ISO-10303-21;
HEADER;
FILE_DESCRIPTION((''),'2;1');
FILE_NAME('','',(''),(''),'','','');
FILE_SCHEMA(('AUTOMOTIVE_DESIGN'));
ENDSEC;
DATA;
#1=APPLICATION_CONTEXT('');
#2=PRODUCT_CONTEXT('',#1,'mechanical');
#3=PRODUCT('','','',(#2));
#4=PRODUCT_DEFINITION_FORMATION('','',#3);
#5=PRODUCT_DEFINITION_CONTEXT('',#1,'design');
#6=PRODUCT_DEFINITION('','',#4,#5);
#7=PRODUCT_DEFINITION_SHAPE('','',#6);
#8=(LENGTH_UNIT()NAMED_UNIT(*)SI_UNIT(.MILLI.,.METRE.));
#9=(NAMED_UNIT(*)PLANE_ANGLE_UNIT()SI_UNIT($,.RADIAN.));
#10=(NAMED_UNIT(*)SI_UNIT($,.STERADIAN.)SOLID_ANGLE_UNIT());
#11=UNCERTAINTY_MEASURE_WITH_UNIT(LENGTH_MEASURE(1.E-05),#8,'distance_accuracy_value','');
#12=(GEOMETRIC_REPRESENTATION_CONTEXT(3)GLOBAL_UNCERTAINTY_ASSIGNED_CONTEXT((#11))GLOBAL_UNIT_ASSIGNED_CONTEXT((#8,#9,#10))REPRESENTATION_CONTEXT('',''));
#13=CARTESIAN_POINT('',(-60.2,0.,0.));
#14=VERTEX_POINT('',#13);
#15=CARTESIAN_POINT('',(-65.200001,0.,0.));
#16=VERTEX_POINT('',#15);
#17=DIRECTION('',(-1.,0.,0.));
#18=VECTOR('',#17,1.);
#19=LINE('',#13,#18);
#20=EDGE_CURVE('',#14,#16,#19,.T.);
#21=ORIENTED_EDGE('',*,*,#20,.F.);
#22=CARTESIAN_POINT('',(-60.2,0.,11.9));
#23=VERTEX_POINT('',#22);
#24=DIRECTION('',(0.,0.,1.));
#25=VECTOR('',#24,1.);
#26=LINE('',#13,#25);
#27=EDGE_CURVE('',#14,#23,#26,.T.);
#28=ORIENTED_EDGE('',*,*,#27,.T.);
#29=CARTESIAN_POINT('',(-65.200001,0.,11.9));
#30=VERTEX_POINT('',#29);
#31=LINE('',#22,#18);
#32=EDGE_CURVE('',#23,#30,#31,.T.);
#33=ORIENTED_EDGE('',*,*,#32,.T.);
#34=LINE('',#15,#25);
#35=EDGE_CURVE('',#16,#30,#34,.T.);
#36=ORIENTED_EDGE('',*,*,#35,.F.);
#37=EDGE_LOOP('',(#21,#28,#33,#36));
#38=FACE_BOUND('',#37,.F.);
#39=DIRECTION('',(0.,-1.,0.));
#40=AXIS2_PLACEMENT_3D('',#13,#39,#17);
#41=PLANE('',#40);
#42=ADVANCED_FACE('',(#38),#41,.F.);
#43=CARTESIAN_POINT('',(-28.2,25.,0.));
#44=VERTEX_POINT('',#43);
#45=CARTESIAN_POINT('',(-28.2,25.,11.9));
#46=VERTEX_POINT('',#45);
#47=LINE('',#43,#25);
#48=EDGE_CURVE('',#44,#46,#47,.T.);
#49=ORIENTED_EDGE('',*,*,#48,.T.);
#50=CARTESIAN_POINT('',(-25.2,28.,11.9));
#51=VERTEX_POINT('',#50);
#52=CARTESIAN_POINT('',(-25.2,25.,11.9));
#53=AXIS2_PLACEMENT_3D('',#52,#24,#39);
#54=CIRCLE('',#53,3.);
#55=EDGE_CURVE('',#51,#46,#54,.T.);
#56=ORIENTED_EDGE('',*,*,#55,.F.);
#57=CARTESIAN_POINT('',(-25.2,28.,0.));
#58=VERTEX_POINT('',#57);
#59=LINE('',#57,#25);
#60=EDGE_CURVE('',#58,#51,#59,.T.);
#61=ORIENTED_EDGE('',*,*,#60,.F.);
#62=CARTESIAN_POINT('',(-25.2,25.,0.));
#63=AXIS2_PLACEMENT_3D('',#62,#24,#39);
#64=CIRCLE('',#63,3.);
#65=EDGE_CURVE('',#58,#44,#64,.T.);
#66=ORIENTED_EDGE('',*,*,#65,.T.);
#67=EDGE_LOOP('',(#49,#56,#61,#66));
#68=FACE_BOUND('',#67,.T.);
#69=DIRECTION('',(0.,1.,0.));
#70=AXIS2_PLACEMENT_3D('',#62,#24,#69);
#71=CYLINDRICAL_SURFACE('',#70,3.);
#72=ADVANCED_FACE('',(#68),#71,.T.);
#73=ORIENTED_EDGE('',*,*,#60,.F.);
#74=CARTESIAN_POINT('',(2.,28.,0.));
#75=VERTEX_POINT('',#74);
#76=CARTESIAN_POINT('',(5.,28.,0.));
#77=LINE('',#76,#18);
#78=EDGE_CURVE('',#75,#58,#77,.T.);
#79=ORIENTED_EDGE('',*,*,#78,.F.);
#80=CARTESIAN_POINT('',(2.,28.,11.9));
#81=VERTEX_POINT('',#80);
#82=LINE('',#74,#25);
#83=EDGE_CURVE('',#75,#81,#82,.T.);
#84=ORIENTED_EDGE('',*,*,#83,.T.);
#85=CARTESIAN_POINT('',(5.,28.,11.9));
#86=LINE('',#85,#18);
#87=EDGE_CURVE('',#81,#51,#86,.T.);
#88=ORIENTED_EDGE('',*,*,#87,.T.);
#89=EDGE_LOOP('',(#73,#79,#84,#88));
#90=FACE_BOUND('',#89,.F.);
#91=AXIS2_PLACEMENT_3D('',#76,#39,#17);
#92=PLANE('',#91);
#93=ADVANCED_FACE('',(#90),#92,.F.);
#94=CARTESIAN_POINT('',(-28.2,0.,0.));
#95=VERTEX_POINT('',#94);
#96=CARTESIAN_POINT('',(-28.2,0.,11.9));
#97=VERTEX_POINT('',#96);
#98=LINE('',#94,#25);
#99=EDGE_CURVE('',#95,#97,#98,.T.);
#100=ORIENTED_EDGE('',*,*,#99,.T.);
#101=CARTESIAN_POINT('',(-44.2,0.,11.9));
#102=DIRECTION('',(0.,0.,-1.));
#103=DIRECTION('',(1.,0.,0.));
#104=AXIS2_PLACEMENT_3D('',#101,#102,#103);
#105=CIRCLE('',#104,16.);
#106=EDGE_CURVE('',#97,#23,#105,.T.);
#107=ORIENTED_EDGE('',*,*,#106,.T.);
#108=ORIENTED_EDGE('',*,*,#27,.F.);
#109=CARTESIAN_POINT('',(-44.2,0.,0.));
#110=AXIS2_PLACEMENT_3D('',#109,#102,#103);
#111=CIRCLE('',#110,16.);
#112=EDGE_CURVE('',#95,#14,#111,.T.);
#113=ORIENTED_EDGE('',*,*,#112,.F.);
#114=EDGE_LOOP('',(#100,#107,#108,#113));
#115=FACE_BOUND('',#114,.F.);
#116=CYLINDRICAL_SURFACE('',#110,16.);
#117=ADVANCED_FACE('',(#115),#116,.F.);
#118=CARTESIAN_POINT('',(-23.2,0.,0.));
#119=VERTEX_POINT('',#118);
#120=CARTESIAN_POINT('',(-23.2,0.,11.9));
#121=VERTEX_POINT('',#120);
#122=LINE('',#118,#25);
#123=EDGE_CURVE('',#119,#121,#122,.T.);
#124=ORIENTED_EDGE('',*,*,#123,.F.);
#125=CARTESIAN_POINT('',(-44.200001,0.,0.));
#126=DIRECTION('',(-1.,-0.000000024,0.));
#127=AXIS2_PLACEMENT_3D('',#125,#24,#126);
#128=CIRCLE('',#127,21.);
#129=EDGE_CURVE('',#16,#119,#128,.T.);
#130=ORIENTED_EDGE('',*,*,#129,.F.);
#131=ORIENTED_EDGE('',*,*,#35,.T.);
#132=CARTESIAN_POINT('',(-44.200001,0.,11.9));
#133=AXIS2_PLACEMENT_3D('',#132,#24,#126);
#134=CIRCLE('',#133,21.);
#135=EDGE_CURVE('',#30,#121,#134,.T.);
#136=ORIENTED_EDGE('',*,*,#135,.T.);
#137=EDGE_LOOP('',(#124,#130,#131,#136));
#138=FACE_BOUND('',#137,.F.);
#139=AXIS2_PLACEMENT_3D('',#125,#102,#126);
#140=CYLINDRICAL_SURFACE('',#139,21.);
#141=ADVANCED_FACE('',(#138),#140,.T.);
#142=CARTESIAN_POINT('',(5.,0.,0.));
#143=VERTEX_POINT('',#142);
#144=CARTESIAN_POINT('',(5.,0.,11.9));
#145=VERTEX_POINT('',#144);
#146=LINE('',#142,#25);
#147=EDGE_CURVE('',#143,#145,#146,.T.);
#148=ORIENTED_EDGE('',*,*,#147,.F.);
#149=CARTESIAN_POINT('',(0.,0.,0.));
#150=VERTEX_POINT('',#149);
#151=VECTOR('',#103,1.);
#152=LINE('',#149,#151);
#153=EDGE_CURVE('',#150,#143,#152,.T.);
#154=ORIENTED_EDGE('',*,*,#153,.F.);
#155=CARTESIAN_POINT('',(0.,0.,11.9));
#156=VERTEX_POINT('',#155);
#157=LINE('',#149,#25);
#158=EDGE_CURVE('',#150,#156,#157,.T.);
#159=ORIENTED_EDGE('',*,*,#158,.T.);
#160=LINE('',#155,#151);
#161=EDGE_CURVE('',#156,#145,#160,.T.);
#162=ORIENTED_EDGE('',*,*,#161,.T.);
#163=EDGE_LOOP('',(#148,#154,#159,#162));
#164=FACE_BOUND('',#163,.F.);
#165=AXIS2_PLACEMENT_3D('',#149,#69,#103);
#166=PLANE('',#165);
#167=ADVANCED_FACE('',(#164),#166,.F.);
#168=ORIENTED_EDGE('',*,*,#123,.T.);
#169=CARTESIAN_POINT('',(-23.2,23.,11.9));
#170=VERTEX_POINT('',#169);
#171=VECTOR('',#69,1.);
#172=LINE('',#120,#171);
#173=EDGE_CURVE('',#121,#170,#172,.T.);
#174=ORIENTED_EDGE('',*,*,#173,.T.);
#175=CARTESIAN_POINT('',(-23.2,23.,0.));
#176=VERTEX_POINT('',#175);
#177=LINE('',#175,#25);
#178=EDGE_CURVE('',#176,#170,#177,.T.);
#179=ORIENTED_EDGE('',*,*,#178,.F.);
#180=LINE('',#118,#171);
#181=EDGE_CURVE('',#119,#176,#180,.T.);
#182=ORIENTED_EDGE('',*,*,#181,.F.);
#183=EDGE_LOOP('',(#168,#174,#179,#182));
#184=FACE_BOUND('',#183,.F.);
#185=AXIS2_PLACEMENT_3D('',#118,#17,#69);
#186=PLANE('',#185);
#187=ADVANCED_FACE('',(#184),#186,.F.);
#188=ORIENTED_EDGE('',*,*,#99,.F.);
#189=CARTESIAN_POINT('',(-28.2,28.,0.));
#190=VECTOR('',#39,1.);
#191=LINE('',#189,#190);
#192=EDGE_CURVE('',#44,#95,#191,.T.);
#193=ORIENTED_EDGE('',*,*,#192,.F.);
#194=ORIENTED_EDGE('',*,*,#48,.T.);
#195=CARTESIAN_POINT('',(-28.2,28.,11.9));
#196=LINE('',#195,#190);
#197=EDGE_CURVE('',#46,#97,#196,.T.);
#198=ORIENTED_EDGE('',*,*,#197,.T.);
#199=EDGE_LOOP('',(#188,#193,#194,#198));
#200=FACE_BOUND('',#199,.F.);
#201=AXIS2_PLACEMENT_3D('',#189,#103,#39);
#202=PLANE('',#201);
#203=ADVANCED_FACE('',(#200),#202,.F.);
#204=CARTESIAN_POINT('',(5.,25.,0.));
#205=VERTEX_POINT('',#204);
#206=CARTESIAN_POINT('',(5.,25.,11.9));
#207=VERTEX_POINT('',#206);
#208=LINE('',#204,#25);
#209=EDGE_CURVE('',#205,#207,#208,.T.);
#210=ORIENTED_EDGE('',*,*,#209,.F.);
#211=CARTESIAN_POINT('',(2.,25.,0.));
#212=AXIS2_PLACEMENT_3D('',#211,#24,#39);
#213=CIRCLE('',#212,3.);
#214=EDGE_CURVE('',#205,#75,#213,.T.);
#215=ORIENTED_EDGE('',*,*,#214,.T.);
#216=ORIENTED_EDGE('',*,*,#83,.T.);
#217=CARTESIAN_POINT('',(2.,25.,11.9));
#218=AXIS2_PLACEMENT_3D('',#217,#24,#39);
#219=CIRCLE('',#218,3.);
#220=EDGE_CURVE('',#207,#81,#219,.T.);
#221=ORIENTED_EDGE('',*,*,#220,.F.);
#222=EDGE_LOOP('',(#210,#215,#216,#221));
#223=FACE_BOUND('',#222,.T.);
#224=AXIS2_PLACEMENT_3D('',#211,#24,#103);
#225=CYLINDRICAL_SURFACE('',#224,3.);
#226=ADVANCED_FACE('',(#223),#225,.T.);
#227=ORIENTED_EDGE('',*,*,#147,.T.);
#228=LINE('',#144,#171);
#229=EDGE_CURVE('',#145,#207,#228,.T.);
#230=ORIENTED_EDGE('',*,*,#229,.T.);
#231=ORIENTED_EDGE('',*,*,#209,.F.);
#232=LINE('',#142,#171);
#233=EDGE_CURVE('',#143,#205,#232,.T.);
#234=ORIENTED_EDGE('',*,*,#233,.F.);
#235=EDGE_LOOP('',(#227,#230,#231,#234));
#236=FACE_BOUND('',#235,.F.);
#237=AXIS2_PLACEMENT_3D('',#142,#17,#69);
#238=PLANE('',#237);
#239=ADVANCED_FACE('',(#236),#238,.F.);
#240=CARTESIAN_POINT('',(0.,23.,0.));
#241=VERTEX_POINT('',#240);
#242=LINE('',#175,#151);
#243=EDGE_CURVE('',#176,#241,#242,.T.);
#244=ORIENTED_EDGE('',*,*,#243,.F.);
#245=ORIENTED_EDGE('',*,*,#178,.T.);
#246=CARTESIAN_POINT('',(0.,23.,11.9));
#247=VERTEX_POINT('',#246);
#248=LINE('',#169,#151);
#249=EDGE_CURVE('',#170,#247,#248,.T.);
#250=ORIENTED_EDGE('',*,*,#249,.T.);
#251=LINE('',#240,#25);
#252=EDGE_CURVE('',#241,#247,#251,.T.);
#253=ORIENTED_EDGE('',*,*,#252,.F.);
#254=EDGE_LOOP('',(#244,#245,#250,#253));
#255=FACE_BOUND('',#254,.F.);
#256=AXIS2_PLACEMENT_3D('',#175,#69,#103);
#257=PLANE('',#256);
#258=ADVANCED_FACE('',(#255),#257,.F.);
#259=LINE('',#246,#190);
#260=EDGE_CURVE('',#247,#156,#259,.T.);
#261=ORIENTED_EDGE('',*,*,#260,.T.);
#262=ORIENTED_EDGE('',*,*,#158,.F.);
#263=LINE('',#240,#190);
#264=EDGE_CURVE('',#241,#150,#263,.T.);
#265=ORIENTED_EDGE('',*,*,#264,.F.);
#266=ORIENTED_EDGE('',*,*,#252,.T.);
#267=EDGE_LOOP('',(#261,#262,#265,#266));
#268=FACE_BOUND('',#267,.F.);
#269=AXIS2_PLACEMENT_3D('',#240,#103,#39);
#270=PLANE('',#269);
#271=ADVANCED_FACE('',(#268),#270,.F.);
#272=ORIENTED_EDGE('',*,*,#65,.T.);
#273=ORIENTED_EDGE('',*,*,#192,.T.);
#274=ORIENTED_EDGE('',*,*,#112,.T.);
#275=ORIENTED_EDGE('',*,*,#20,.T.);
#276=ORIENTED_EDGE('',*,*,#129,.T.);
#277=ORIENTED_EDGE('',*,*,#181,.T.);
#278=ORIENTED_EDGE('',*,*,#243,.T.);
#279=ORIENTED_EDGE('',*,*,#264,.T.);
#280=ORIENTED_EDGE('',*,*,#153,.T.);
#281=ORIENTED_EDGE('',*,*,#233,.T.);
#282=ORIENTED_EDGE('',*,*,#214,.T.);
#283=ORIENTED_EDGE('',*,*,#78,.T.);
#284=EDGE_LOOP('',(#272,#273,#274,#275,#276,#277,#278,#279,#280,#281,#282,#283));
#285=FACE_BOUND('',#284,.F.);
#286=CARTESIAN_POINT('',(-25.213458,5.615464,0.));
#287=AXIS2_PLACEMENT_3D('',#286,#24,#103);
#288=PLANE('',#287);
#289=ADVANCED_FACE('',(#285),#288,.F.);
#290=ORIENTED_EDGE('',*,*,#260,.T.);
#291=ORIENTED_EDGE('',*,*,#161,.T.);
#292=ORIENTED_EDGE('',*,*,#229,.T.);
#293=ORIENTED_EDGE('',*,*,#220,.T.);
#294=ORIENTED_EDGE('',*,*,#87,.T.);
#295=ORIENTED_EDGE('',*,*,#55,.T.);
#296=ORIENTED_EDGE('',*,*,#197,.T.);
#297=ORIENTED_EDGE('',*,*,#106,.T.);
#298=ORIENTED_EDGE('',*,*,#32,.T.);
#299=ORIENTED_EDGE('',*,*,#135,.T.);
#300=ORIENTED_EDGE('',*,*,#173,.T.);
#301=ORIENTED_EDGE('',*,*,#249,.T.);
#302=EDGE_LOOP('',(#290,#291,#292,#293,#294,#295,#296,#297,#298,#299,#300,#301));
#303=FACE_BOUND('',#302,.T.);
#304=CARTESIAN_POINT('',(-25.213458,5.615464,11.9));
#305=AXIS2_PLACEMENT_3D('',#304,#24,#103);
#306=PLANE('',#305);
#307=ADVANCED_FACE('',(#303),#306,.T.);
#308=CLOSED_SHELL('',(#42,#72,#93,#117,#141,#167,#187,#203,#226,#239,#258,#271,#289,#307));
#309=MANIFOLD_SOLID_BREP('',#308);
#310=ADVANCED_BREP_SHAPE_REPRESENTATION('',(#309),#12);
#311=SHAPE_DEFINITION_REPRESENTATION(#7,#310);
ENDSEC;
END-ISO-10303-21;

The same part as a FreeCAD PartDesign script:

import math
import FreeCAD as App
import Part
import Sketcher
from FreeCAD import Vector


def edges_at(feature, points):
    """Names of the edges that pass closest to the given points."""
    edges = feature.Shape.Edges
    near = lambda p: min(range(len(edges)), key=lambda i: edges[i].distToShape(Part.Vertex(*p))[0])
    return sorted({f"Edge{near(p) + 1}" for p in points})

doc = App.newDocument("Part")
params = doc.addObject("Spreadsheet::Sheet", "Params")
for row, (alias, value) in enumerate([
    ("sketch1_radius", "16 mm"),
    ("sketch1_radius2", "21 mm"),
    ("sketch1_height", "23 mm"),
    ("sketch1_height2", "28 mm"),
    ("sketch1_width", "33.2 mm"),
    ("pad1_length", "11.9 mm"),
    ("fillet_radius", "3 mm"),
], start=1):
    params.set(f"A{row}", alias)
    params.set(f"B{row}", "=" + value)
    params.setAlias(f"B{row}", alias)

body = doc.addObject("PartDesign::Body", "Body")

sketch1 = body.newObject("Sketcher::SketchObject", "Sketch")
sketch1.AttachmentSupport = (doc.getObject("XY_Plane"), [""])
sketch1.MapMode = "FlatFace"
sketch1.addGeometry([
    Part.LineSegment(Vector(0, 23, 0), Vector(0, 0, 0)),
    Part.LineSegment(Vector(0, 0, 0), Vector(5, 0, 0)),
    Part.LineSegment(Vector(5, 0, 0), Vector(5, 28, 0)),
    Part.LineSegment(Vector(5, 28, 0), Vector(-28.2, 28, 0)),
    Part.LineSegment(Vector(-28.2, 28, 0), Vector(-28.2, 0, 0)),
    Part.ArcOfCircle(Part.Circle(Vector(-44.2, 0, 0), Vector(0, 0, 1), 16), math.radians(180), math.radians(360)),
    Part.LineSegment(Vector(-60.2, 0, 0), Vector(-65.200001, 0, 0)),
    Part.ArcOfCircle(Part.Circle(Vector(-44.200001, 0, 0), Vector(0, 0, 1), 21), math.radians(-179.999999), math.radians(-0.000001)),
    Part.LineSegment(Vector(-23.2, 0, 0), Vector(-23.2, 23, 0)),
    Part.LineSegment(Vector(-23.2, 23, 0), Vector(0, 23, 0)),
], False)
sketch1.addConstraint([
    Sketcher.Constraint("Coincident", 0, 2, 1, 1),
    Sketcher.Constraint("Coincident", 1, 2, 2, 1),
    Sketcher.Constraint("Coincident", 2, 2, 3, 1),
    Sketcher.Constraint("Coincident", 3, 2, 4, 1),
    Sketcher.Constraint("Tangent", 4, 2, 5, 2),
    Sketcher.Constraint("Coincident", 5, 1, 6, 1),
    Sketcher.Constraint("Coincident", 6, 2, 7, 1),
    Sketcher.Constraint("Tangent", 7, 2, 8, 1),
    Sketcher.Constraint("Coincident", 8, 2, 9, 1),
    Sketcher.Constraint("Coincident", 9, 2, 0, 1),
    Sketcher.Constraint("Vertical", 0),
    Sketcher.Constraint("Horizontal", 1),
    Sketcher.Constraint("Vertical", 2),
    Sketcher.Constraint("Horizontal", 3),
    Sketcher.Constraint("Vertical", 4),
    Sketcher.Constraint("Horizontal", 6),
    Sketcher.Constraint("Vertical", 8),
    Sketcher.Constraint("Horizontal", 9),
    Sketcher.Constraint("Coincident", 0, 2, -1, 1),
    Sketcher.Constraint("Coincident", 7, 3, 5, 3),
    Sketcher.Constraint("PointOnObject", 5, 3, -1),
    Sketcher.Constraint("PointOnObject", 5, 1, -1),
    Sketcher.Constraint("Equal", 1, 6),
    Sketcher.Constraint("Radius", 5, 16.0),
    Sketcher.Constraint("Radius", 7, 21.0),
    Sketcher.Constraint("DistanceY", 0, 2, 0, 1, 23.0),
    Sketcher.Constraint("DistanceY", 2, 1, 2, 2, 28.0),
    Sketcher.Constraint("DistanceX", 3, 2, 3, 1, 33.2),
])
sketch1.setExpression("Constraints[23]", "Params.sketch1_radius")
sketch1.setExpression("Constraints[24]", "Params.sketch1_radius2")
sketch1.setExpression("Constraints[25]", "Params.sketch1_height")
sketch1.setExpression("Constraints[26]", "Params.sketch1_height2")
sketch1.setExpression("Constraints[27]", "Params.sketch1_width")
pad1 = body.newObject("PartDesign::Pad", "Pad")
pad1.Profile = sketch1
pad1.setExpression("Length", "Params.pad1_length")
doc.recompute()

fillet = body.newObject("PartDesign::Fillet", "Fillet")
fillet.Base = (pad1, edges_at(pad1, [(-28.2, 28, 5.95), (5, 28, 5.95)]))
fillet.setExpression("Radius", "Params.fillet_radius")

doc.recompute()
